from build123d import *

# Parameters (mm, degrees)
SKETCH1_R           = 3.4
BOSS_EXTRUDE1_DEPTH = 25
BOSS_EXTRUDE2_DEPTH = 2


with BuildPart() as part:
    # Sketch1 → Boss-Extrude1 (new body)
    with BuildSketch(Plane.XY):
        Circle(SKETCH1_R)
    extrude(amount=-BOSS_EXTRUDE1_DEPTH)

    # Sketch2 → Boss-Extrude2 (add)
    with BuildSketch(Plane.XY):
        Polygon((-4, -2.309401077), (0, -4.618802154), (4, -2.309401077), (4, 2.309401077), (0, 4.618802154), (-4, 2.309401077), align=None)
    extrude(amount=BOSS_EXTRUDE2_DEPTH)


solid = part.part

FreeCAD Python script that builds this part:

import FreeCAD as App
import Part
import Sketcher

V = App.Vector
Q = App.Units.Quantity

doc = App.newDocument("Part")
body = doc.addObject("PartDesign::Body", "Body")

sketch1 = body.newObject("Sketcher::SketchObject", "Sketch")
sketch1.AttachmentSupport = (doc.getObject("XY_Plane"), [""])
sketch1.MapMode = "FlatFace"
sketch1.addGeometry(Part.Circle(V(0, 0, 0), V(0, 0, 1), 3.4), False)
sketch1.addConstraint([
    Sketcher.Constraint("Coincident", 0, 3, -1, 1),
    Sketcher.Constraint("Diameter", 0, Q("6.8 mm")),
])
pad1 = body.newObject("PartDesign::Pad", "Pad")
pad1.Profile = sketch1
pad1.Length = 25
pad1.Reversed = True

sketch2 = body.newObject("Sketcher::SketchObject", "Sketch001")
sketch2.AttachmentSupport = (doc.getObject("XY_Plane"), [""])
sketch2.MapMode = "FlatFace"
sketch2.addGeometry([
    Part.LineSegment(V(-4, -2.3, 0), V(0, -4.6, 0)),
    Part.LineSegment(V(0, -4.6, 0), V(4, -2.3, 0)),
    Part.LineSegment(V(4, -2.3, 0), V(4, 2.3, 0)),
    Part.LineSegment(V(4, 2.3, 0), V(0, 4.6, 0)),
    Part.LineSegment(V(0, 4.6, 0), V(-4, 2.3, 0)),
    Part.LineSegment(V(-4, 2.3, 0), V(-4, -2.3, 0)),
], False)
sketch2.addConstraint([
    Sketcher.Constraint("Coincident", 0, 2, 1, 1),
    Sketcher.Constraint("Coincident", 1, 2, 2, 1),
    Sketcher.Constraint("Coincident", 2, 2, 3, 1),
    Sketcher.Constraint("Coincident", 3, 2, 4, 1),
    Sketcher.Constraint("Coincident", 4, 2, 5, 1),
    Sketcher.Constraint("Coincident", 5, 2, 0, 1),
    Sketcher.Constraint("Vertical", 2),
    Sketcher.Constraint("Vertical", 5),
    Sketcher.Constraint("Symmetric", 0, 2, 3, 2, -1, 1),
    Sketcher.Constraint("Symmetric", 1, 2, 4, 2, -1, 1),
    Sketcher.Constraint("PointOnObject", 0, 2, -2),
    Sketcher.Constraint("Parallel", 0, 3),
    Sketcher.Constraint("Horizontal", 2, 2, 4, 2),
    Sketcher.Constraint("Angle", 0, Q("-30 deg")),
    Sketcher.Constraint("DistanceX", -1, 1, 1, 2, Q("4 mm")),
    Sketcher.Constraint("DistanceY", 1, 2, -1, 1, Q("2.309401 mm")),
])
pad2 = body.newObject("PartDesign::Pad", "Pad001")
pad2.Profile = sketch2
pad2.Length = 2

doc.recompute()
